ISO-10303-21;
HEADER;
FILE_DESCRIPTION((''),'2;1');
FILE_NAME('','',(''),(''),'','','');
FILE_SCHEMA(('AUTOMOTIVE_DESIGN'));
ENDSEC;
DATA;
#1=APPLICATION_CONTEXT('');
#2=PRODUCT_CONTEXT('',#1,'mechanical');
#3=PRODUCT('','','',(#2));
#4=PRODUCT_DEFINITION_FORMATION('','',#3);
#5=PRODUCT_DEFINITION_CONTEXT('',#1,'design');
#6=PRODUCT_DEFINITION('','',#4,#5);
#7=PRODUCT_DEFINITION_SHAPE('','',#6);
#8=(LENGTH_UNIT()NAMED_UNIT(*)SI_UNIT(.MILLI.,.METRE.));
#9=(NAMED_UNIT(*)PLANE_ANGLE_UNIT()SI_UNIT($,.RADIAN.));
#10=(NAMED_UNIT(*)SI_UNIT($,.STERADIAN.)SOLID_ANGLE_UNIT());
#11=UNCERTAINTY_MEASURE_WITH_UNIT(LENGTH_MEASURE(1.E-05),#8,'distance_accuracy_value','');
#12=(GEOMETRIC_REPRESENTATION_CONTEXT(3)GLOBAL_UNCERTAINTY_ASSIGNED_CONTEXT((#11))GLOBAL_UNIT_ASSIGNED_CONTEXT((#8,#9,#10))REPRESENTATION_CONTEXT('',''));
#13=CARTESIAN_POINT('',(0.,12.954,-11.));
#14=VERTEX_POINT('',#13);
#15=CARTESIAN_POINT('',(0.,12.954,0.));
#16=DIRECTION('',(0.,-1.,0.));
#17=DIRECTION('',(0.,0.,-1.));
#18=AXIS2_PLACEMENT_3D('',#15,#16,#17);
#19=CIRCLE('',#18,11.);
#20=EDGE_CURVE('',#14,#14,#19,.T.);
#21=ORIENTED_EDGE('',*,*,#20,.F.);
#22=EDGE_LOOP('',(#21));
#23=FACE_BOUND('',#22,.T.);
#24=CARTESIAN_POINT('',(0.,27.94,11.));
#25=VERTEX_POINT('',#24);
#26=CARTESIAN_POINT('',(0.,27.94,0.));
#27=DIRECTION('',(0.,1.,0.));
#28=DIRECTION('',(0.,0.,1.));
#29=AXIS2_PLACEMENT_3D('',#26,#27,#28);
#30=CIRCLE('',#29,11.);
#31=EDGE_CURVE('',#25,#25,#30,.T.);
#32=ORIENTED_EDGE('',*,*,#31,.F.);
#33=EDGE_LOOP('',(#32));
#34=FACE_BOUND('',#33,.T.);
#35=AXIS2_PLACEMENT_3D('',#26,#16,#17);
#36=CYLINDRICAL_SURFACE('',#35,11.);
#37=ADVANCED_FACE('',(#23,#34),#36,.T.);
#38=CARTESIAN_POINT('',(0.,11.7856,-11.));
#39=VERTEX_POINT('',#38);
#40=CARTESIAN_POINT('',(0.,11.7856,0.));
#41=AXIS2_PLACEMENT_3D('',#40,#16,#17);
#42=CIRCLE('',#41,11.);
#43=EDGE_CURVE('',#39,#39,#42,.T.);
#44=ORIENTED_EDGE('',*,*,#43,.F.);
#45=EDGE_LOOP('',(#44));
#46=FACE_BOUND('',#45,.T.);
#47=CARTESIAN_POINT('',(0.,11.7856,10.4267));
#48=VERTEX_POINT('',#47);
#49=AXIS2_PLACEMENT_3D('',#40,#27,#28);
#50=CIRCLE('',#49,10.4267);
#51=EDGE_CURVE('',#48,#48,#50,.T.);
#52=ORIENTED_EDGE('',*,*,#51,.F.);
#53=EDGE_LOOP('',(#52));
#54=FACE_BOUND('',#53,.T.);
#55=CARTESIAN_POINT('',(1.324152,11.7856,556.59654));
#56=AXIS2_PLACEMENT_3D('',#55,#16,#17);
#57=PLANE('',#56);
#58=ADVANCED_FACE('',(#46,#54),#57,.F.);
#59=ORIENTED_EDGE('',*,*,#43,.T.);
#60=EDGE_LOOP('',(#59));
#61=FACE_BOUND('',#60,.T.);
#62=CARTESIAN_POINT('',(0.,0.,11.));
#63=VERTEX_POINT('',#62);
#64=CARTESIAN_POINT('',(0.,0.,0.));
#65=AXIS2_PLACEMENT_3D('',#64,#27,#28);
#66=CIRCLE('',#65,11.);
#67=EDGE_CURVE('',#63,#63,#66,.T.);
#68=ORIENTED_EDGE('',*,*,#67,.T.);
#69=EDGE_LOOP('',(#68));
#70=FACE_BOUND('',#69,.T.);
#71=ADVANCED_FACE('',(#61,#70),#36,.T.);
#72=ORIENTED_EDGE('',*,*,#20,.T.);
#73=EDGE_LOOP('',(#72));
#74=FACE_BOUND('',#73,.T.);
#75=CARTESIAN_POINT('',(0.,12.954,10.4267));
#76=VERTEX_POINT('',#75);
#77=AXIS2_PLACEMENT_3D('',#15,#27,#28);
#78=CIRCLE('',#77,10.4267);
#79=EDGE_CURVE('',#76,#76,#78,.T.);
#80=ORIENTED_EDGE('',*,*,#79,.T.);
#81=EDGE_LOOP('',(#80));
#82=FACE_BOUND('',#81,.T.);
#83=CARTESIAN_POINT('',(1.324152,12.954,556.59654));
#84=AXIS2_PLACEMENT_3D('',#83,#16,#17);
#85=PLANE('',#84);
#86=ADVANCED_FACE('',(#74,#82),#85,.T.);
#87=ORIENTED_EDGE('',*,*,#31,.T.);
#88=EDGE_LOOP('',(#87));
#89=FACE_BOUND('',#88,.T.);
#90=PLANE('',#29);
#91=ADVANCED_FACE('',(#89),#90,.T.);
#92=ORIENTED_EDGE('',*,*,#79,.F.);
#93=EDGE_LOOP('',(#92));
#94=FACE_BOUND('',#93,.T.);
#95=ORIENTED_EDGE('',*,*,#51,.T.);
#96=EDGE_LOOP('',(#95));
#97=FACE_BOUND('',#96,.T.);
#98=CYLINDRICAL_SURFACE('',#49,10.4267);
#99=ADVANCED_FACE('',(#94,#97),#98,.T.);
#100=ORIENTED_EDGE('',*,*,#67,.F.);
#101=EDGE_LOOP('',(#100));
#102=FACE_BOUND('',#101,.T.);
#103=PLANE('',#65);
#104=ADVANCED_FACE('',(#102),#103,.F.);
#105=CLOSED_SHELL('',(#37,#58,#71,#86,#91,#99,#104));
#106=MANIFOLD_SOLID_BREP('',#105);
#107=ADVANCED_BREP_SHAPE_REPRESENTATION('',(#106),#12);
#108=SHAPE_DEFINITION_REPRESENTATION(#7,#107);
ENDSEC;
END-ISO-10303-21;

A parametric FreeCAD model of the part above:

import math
import FreeCAD as App
import Part
import Sketcher
Q = App.Units.Quantity

doc = App.newDocument("Part")
body = doc.addObject("PartDesign::Body", "Body")

# Sketch on XZ plane
sketch1 = body.newObject("Sketcher::SketchObject", "Sketch")
sketch1.AttachmentSupport = (doc.getObject("XZ_Plane"), [""])
sketch1.MapMode = "FlatFace"
sketch1.addGeometry(Part.Circle(App.Vector(0, 0, 0), App.Vector(0, 0, 1), 11), False)
sketch1.addConstraint([
    Sketcher.Constraint("Coincident", 0, 3, -1, 1),
    Sketcher.Constraint("Diameter", 0, Q("22 mm")),
])
pad1 = body.newObject("PartDesign::Pad", "Pad")
pad1.Profile = sketch1
pad1.Length = Q("1.1 in")
pad1.Reversed = True

# Sketch on XZ plane
sketch2 = body.newObject("Sketcher::SketchObject", "Sketch001")
sketch2.AttachmentSupport = (doc.getObject("XZ_Plane"), [""])
sketch2.MapMode = "FlatFace"
sketch2.AttachmentOffset = App.Placement(App.Vector(0, 0, -0.51 * 25.4), App.Rotation())
sketch2.addGeometry([
    Part.LineSegment(App.Vector(-17.2, -14.6, 0), App.Vector(-16.3, 14.8, 0)),  # 0
    Part.LineSegment(App.Vector(-16.3, 14.8, 0), App.Vector(21.4, 16.3, 0)),  # 1
    Part.LineSegment(App.Vector(21.4, 16.3, 0), App.Vector(22.1, -14.2, 0)),  # 2
    Part.LineSegment(App.Vector(22.1, -14.2, 0), App.Vector(19.9, -14.6, 0)),  # 3
    Part.ArcOfCircle(Part.Circle(App.Vector(1.3, 556.6, 0), App.Vector(0, 0, 1), 571.5), math.radians(-91.86), math.radians(-88.14)),  # 4
    Part.Circle(App.Vector(0, 0, 0), App.Vector(0, 0, 1), 10.4),  # 5
], False)
sketch2.addConstraint([
    Sketcher.Constraint("Coincident", 0, 2, 1, 1),
    Sketcher.Constraint("Coincident", 1, 2, 2, 1),
    Sketcher.Constraint("Coincident", 2, 2, 3, 1),
    Sketcher.Constraint("Coincident", 3, 2, 4, 2),
    Sketcher.Constraint("Coincident", 4, 1, 0, 1),
    Sketcher.Constraint("Coincident", 5, 3, -1, 1),
    Sketcher.Constraint("Horizontal", 3, 2, 4, 1),
    Sketcher.Constraint("Diameter", 5, Q("0.821 in")),
    Sketcher.Constraint("Radius", 4, Q("571.461558 mm")),
    Sketcher.Constraint("DistanceX", 4, 1, 3, 2, Q("1.4616999 in")),
    Sketcher.Constraint("Distance", 3, Q("2.236701 mm")),
    Sketcher.Constraint("Distance", 1, Q("37.717889 mm")),
    Sketcher.Constraint("DistanceY", -1, 1, 4, 3, Q("556.596539 mm")),
    Sketcher.Constraint("DistanceY", -1, 1, 0, 2, Q("14.84083 mm")),
    Sketcher.Constraint("DistanceX", -1, 1, 1, 2, Q("21.406068 mm")),
    Sketcher.Constraint("DistanceX", -1, 1, 3, 2, Q("19.887742 mm")),
    Sketcher.Constraint("DistanceX", 0, 2, 1, 2, Q("37.689821 mm")),
    Sketcher.Constraint("DistanceX", 1, 2, 2, 2, Q("0.688208 mm")),
])
pocket1 = body.newObject("PartDesign::Pocket", "Pocket")
pocket1.Profile = sketch2
pocket1.Length = Q("0.046 in")
pocket1.Reversed = True

doc.recompute()
